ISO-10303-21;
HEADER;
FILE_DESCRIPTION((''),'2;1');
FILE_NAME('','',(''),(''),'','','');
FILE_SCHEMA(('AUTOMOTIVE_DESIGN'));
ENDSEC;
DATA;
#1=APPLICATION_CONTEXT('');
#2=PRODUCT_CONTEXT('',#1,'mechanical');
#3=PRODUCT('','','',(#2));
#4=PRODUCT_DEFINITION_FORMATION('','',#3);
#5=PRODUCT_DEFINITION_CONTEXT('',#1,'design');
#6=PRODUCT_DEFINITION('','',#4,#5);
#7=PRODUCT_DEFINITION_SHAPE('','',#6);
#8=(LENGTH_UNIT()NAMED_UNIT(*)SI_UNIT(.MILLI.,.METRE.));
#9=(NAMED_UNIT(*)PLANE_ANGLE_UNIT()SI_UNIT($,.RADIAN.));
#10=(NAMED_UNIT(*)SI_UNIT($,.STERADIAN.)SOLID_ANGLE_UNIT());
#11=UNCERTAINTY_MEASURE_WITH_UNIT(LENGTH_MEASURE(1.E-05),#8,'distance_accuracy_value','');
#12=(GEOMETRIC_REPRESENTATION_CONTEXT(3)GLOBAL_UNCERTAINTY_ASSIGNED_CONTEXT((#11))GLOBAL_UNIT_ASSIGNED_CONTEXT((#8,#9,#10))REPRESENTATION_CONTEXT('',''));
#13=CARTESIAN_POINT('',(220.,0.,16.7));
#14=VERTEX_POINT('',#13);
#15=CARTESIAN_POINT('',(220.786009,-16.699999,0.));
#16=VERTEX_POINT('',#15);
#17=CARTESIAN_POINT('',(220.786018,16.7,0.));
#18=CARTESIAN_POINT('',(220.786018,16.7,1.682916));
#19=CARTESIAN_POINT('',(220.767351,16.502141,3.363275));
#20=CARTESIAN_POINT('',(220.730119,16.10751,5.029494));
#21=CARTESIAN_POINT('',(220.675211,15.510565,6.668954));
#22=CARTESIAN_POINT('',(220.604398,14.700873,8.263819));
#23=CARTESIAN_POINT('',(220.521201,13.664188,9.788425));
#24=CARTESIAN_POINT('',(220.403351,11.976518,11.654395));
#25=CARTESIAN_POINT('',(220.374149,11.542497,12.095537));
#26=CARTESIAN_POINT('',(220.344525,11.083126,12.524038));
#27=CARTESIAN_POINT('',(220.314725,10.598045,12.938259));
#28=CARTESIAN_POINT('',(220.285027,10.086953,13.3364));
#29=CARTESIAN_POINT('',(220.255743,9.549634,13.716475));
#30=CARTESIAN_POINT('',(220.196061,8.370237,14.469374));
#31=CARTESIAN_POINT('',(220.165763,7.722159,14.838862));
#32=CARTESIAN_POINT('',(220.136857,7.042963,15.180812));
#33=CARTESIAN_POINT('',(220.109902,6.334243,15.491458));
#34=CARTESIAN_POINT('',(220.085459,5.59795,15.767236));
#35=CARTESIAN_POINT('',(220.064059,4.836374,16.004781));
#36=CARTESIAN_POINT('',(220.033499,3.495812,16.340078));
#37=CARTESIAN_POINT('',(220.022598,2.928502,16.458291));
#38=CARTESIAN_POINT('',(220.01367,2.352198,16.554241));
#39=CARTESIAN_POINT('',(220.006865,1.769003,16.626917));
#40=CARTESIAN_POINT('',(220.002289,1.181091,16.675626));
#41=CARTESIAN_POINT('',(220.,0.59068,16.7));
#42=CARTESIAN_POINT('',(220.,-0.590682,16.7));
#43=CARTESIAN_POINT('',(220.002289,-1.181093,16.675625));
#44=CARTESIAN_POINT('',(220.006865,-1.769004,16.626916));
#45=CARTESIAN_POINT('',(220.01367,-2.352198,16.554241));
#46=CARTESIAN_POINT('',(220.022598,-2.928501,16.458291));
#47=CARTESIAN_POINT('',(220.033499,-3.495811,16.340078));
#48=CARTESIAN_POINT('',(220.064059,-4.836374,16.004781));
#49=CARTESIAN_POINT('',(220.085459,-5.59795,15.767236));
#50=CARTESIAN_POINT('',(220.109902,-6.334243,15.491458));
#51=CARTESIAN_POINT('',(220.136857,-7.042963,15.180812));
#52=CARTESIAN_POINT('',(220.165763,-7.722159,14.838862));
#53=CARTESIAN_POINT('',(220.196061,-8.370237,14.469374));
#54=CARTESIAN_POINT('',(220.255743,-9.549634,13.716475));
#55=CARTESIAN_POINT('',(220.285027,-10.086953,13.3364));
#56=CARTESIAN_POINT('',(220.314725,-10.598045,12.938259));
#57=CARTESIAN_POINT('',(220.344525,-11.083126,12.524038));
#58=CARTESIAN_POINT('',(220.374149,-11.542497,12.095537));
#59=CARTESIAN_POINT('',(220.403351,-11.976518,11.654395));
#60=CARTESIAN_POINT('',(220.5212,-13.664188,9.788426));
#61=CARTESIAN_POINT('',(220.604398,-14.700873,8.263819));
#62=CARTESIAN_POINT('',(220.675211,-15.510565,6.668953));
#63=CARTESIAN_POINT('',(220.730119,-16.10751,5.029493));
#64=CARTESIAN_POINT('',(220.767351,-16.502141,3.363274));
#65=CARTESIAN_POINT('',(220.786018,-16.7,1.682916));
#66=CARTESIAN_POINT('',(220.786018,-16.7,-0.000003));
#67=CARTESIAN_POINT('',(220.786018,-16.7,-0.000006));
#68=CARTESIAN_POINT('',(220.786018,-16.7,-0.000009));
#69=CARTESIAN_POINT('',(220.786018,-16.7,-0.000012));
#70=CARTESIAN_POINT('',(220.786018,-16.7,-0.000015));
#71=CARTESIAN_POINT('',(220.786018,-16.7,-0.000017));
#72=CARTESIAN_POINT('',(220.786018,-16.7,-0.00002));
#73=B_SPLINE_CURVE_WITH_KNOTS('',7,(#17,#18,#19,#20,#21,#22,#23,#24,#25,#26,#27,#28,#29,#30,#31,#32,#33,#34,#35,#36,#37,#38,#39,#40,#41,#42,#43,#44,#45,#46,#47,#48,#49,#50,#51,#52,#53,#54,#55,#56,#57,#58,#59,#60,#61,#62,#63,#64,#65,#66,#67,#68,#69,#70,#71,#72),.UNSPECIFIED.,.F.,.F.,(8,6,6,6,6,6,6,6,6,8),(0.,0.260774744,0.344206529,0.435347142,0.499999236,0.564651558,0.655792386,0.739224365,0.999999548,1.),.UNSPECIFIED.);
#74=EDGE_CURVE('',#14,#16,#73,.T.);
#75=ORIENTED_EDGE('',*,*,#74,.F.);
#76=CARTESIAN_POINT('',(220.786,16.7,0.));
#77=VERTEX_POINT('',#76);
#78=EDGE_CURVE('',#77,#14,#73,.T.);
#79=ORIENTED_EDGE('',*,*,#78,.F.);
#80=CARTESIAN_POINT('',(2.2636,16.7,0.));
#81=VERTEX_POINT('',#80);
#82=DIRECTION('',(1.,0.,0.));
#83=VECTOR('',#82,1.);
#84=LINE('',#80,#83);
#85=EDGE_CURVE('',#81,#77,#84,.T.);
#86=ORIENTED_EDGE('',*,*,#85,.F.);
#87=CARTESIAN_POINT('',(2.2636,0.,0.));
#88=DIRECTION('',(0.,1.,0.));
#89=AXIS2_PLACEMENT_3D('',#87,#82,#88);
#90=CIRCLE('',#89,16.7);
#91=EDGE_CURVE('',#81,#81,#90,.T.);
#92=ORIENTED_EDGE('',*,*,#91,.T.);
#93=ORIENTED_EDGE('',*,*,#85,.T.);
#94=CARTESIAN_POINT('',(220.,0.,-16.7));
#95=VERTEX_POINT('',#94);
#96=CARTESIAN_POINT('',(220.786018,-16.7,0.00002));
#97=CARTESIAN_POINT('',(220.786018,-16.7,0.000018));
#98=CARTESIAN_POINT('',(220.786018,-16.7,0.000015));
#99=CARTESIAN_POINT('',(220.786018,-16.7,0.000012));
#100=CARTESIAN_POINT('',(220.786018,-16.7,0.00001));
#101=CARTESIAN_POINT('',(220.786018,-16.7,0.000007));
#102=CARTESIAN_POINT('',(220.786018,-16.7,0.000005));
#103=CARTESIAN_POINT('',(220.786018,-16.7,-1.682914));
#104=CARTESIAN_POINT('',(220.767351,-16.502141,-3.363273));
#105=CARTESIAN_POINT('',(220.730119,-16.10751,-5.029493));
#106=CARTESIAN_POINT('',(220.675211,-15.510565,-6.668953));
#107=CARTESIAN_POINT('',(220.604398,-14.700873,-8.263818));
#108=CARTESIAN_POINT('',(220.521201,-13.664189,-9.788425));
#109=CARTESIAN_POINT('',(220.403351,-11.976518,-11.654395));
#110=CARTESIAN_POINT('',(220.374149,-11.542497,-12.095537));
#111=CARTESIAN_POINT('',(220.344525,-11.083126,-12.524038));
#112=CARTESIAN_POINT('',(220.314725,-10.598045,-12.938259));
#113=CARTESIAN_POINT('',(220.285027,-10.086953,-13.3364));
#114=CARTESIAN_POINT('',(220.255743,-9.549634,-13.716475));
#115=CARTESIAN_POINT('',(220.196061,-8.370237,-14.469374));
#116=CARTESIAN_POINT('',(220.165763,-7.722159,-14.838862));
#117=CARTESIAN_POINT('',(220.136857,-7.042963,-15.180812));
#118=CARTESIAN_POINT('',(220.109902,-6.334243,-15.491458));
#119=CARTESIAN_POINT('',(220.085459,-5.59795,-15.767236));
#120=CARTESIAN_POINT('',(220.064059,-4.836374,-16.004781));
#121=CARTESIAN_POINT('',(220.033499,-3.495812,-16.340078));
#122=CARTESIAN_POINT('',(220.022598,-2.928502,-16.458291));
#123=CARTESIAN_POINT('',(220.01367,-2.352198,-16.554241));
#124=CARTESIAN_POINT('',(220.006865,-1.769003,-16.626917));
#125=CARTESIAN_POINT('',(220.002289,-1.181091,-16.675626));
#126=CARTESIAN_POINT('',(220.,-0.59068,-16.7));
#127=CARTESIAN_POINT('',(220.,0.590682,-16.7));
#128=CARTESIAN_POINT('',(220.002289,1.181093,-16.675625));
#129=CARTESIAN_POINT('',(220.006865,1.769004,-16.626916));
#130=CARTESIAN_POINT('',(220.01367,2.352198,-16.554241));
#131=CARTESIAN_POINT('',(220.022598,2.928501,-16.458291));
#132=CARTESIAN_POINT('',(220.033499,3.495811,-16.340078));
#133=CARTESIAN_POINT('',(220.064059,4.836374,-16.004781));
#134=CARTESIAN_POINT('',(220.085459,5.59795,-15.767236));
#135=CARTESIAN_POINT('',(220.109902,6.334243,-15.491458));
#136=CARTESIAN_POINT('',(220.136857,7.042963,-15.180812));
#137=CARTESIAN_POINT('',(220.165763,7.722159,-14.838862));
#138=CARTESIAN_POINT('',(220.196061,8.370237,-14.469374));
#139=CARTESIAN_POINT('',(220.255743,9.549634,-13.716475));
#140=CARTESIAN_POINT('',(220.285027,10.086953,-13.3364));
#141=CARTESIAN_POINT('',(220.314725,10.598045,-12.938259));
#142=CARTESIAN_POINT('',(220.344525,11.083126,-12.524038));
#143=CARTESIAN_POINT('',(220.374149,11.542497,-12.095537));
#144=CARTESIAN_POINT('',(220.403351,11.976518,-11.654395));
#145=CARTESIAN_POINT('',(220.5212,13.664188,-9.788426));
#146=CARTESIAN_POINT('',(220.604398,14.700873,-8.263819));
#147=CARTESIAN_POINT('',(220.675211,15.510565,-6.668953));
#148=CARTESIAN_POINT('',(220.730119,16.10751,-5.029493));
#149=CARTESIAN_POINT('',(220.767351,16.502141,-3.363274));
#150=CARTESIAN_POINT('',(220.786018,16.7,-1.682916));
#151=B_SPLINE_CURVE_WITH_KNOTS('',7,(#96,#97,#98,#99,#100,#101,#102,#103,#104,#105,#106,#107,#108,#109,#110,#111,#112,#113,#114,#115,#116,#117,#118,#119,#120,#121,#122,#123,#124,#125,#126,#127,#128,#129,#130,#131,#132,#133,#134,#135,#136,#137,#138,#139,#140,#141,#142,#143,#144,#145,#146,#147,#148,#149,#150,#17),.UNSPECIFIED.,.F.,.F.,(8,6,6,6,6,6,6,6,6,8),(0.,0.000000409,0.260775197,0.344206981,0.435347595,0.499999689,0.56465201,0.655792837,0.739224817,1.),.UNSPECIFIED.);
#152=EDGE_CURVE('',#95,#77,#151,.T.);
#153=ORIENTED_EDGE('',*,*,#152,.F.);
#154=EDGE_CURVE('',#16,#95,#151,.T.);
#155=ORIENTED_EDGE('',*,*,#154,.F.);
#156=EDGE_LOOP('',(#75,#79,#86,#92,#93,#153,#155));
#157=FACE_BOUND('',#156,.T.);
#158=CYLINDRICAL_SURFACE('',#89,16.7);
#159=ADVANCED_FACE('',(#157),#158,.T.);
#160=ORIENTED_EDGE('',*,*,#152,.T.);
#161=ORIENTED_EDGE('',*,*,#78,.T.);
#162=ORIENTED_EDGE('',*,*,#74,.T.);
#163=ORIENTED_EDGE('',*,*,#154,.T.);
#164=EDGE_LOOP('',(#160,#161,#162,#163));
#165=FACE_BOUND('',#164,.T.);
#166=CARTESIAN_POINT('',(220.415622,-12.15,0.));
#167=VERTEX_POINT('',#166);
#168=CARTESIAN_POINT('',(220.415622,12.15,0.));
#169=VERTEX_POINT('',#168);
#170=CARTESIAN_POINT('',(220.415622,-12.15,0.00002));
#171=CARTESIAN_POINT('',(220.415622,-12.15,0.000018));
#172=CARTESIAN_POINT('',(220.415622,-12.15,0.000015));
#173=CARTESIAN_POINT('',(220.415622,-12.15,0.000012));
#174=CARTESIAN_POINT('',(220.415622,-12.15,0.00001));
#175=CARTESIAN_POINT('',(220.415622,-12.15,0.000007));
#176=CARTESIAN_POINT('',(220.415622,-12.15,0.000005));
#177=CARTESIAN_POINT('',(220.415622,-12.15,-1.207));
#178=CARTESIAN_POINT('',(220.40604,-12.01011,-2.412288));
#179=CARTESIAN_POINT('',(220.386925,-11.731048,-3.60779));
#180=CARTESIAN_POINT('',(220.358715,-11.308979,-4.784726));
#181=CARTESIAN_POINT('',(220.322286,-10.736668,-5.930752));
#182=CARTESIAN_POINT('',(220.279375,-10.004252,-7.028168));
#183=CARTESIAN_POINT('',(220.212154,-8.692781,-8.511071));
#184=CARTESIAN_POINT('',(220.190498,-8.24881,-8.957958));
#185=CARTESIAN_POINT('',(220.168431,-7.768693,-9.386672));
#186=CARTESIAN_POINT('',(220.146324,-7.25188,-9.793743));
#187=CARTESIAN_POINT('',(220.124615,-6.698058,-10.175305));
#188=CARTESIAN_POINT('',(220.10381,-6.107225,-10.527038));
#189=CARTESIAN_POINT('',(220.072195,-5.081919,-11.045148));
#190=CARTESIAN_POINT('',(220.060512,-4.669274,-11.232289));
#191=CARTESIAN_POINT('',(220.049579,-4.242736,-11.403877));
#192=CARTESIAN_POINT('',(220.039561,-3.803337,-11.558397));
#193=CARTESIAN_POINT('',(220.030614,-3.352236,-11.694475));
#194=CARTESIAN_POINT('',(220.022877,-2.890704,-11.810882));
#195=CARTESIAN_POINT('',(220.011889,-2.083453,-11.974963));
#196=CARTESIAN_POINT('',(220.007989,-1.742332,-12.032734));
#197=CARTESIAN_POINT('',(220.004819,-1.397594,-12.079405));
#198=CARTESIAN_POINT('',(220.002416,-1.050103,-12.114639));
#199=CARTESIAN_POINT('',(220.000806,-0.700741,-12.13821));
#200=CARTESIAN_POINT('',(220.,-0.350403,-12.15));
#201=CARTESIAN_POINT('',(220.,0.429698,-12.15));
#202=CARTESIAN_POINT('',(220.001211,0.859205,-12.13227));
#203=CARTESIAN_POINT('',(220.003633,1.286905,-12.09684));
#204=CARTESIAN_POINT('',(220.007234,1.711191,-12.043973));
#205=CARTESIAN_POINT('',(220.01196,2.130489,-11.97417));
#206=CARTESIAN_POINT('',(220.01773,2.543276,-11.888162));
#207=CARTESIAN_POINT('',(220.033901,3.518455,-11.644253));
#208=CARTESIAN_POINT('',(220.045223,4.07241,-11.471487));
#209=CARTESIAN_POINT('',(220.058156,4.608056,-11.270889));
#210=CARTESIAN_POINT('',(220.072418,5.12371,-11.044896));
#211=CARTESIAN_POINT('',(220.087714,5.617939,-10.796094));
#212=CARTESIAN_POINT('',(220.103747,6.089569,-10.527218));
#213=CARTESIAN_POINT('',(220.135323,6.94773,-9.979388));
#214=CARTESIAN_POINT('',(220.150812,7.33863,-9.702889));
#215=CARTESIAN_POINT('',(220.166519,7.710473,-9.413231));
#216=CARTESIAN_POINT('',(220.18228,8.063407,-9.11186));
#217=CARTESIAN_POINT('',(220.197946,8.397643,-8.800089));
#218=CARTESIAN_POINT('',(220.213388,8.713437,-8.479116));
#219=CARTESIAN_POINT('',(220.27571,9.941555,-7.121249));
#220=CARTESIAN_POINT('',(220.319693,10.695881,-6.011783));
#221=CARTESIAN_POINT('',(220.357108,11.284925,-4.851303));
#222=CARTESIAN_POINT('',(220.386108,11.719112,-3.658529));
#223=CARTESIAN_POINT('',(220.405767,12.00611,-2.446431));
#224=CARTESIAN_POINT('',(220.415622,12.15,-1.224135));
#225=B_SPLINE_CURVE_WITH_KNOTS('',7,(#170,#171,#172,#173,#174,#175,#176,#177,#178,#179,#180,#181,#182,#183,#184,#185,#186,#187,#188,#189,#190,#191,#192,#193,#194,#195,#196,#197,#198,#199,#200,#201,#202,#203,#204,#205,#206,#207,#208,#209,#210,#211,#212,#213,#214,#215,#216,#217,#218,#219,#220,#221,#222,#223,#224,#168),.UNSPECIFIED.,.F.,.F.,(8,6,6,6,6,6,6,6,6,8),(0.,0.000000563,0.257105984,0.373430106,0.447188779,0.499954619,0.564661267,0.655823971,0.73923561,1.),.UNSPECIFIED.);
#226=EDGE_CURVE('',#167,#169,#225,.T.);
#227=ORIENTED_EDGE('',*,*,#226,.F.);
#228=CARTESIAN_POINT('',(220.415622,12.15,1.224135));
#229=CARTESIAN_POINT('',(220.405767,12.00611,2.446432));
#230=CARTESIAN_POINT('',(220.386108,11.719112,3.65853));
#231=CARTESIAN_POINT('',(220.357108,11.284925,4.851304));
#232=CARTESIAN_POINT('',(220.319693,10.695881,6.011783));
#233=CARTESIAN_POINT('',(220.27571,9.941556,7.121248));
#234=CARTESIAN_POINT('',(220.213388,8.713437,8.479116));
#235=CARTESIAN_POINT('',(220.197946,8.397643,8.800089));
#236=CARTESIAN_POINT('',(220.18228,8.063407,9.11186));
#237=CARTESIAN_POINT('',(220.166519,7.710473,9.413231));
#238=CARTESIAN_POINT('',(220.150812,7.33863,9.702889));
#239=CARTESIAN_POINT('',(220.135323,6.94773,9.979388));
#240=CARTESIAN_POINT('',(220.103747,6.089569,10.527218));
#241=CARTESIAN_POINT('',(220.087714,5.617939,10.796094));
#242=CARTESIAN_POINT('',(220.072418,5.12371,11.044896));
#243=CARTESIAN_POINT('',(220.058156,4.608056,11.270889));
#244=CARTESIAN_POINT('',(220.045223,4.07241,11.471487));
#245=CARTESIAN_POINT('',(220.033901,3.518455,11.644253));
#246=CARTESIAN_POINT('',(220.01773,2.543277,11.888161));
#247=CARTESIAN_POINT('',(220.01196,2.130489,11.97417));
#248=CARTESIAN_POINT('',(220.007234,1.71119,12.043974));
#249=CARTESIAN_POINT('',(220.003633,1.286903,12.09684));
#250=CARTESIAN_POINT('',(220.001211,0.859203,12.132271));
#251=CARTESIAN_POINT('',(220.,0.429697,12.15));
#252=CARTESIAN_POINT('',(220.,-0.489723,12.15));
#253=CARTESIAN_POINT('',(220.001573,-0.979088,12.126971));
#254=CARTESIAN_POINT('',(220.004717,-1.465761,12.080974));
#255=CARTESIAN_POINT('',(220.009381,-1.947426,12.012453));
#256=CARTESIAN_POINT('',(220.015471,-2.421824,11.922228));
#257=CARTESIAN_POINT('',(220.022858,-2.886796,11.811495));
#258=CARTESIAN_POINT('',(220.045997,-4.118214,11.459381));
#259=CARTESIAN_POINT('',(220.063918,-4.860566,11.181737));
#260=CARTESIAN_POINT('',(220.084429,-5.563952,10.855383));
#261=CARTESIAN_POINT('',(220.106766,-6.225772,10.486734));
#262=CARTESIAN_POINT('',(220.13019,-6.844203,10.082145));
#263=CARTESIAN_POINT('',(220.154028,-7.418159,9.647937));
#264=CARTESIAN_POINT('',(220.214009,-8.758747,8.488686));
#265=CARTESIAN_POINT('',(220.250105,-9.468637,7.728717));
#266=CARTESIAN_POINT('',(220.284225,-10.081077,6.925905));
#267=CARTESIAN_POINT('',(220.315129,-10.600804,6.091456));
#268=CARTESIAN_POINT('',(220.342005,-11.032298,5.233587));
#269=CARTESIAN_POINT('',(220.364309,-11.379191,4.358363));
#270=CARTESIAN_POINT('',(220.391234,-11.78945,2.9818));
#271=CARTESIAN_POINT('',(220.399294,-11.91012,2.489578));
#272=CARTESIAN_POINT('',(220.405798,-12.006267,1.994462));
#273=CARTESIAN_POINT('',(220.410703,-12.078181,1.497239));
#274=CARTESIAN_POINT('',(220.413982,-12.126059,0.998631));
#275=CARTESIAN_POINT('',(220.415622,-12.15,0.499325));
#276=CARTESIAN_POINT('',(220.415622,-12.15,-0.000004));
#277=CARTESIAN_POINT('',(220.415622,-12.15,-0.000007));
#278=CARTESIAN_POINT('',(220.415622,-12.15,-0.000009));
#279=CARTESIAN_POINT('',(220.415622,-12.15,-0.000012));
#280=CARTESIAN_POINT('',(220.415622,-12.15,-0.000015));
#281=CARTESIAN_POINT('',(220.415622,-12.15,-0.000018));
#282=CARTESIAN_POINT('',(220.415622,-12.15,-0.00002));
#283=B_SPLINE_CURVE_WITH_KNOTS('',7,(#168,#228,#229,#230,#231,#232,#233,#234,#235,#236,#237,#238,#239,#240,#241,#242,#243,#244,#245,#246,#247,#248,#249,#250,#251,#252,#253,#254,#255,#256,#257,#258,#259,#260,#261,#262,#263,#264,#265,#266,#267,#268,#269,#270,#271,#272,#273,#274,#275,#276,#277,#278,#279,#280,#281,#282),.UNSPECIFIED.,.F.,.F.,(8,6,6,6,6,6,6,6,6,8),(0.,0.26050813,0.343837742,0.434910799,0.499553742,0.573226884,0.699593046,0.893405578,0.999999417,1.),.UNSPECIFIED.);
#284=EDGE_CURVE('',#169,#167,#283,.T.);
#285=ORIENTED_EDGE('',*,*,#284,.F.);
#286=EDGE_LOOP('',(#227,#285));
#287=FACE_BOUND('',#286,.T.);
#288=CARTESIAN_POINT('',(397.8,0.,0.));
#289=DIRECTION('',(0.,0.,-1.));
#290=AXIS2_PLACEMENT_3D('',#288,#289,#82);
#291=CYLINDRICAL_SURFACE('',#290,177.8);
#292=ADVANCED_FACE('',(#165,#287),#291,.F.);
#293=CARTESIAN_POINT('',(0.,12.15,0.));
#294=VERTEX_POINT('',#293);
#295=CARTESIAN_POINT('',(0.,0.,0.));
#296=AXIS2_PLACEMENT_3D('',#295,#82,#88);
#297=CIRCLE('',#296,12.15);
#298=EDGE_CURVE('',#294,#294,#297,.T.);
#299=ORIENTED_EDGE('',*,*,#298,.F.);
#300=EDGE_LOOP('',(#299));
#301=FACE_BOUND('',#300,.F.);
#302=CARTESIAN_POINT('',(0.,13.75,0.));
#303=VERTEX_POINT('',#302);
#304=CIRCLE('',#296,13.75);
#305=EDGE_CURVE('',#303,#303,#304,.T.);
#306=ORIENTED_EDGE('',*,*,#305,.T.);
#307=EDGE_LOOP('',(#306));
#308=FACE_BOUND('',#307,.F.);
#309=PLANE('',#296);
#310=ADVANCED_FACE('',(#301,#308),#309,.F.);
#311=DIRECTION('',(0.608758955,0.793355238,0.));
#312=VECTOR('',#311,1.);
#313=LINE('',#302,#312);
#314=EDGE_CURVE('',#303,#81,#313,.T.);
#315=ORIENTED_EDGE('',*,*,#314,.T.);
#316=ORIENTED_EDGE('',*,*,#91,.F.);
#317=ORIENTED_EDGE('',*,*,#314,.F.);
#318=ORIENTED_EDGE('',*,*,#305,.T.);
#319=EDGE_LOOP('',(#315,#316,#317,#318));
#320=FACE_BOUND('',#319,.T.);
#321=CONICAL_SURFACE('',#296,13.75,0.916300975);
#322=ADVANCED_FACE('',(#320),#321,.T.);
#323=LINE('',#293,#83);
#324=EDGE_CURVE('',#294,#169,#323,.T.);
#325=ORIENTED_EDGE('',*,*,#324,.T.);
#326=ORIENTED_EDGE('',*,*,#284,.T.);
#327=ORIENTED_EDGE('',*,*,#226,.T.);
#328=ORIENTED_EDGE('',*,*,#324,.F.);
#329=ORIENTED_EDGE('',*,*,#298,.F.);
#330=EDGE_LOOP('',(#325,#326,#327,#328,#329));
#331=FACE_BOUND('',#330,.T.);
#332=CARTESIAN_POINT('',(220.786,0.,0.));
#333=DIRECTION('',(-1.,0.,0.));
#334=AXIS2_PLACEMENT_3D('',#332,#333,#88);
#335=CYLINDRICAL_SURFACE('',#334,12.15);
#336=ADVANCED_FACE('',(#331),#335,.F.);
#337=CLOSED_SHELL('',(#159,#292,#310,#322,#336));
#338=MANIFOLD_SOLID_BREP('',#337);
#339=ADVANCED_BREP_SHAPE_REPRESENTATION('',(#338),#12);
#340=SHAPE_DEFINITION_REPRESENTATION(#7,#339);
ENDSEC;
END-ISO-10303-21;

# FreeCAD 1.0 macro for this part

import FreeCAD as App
import Part
import Sketcher
Q = App.Units.Quantity

doc = App.newDocument("Part")
params = doc.addObject("Spreadsheet::Sheet", "Params")
for row, (alias, value) in enumerate([
    ("sketch1_height", "0.063 in"),
    ("revolution_angle", "360 deg"),
    ("sketch2_diameter", "14 in"),
    ("pocket1_length", "33.4 mm"),
], start=1):
    params.set(f"A{row}", alias)
    params.set(f"B{row}", "=" + value)
    params.setAlias(f"B{row}", alias)

body = doc.addObject("PartDesign::Body", "Body")

# Sketch on XY plane
sketch1 = body.newObject("Sketcher::SketchObject", "Sketch")
sketch1.AttachmentSupport = (doc.getObject("XY_Plane"), [""])
sketch1.MapMode = "FlatFace"
sketch1.addGeometry([
    Part.LineSegment(App.Vector(2.2636, 16.7, 0), App.Vector(0, 13.75, 0)),  # 0
    Part.LineSegment(App.Vector(0, 13.75, 0), App.Vector(0, 12.15, 0)),  # 1
    Part.LineSegment(App.Vector(0, 12.15, 0), App.Vector(220.786, 12.15, 0)),  # 2
    Part.LineSegment(App.Vector(220.786, 12.15, 0), App.Vector(220.786, 16.7, 0)),  # 3
    Part.LineSegment(App.Vector(220.786, 16.7, 0), App.Vector(2.2636, 16.7, 0)),  # 4
], False)
sketch1.addConstraint([
    Sketcher.Constraint("Coincident", 0, 2, 1, 1),
    Sketcher.Constraint("Coincident", 1, 2, 2, 1),
    Sketcher.Constraint("Coincident", 2, 2, 3, 1),
    Sketcher.Constraint("Coincident", 3, 2, 4, 1),
    Sketcher.Constraint("Coincident", 4, 2, 0, 1),
    Sketcher.Constraint("Vertical", 1),
    Sketcher.Constraint("Horizontal", 2),
    Sketcher.Constraint("Vertical", 3),
    Sketcher.Constraint("Horizontal", 4),
    Sketcher.Constraint("PointOnObject", 0, 2, -2),
    Sketcher.Constraint("DistanceY", 1, 2, 1, 1, Q("0.063 in")),
    Sketcher.Constraint("DistanceX", 2, 1, 2, 2, Q("220.786 mm")),
    Sketcher.Constraint("Angle", 0, Q("-127.4998 deg")),
    Sketcher.Constraint("Distance", 0, Q("0.1464 in")),
    Sketcher.Constraint("DistanceY", -1, 1, 0, 2, Q("13.75 mm")),
])
sketch1.setExpression("Constraints[10]", "Params.sketch1_height")
revolution = body.newObject("PartDesign::Revolution", "Revolution")
revolution.Profile = sketch1
revolution.ReferenceAxis = (sketch1, ["H_Axis"])
revolution.setExpression("Angle", "Params.revolution_angle")

# Sketch on XY plane
sketch2 = body.newObject("Sketcher::SketchObject", "Sketch001")
sketch2.AttachmentSupport = (doc.getObject("XY_Plane"), [""])
sketch2.MapMode = "FlatFace"
sketch2.addGeometry(Part.Circle(App.Vector(397.8, 0, 0), App.Vector(0, 0, 1), 177.8), False)
sketch2.addConstraint([
    Sketcher.Constraint("PointOnObject", 0, 3, -1),
    Sketcher.Constraint("Diameter", 0, Q("14 in")),
    Sketcher.Constraint("DistanceX", -1, 1, 0, 3, Q("397.8 mm")),
])
sketch2.setExpression("Constraints[1]", "Params.sketch2_diameter")
pocket1 = body.newObject("PartDesign::Pocket", "Pocket")
pocket1.Profile = sketch2
pocket1.setExpression("Length", "Params.pocket1_length")
pocket1.Midplane = True

doc.recompute()
